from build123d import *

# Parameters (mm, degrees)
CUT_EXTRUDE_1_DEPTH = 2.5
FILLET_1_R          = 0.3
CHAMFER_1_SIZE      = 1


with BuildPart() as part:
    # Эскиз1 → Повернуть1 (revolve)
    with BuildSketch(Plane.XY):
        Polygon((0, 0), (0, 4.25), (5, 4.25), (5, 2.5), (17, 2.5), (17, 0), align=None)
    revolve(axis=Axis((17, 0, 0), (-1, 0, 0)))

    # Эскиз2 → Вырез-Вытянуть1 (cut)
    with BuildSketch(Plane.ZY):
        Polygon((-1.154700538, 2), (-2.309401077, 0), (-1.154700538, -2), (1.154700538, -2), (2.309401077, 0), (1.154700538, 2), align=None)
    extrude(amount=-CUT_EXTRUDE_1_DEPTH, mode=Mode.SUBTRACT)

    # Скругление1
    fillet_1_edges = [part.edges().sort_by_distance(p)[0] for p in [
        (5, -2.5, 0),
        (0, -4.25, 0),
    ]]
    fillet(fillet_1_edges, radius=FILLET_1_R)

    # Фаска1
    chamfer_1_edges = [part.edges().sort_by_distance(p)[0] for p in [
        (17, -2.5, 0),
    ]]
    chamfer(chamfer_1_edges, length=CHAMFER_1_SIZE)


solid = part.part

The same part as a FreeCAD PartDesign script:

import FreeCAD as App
import Part
import Sketcher

V = App.Vector
Q = App.Units.Quantity


def edges_at(feature, points):
    """Names of the edges that pass closest to the given points."""
    edges = feature.Shape.Edges
    near = lambda p: min(range(len(edges)), key=lambda i: edges[i].distToShape(Part.Vertex(*p))[0])
    return sorted({f"Edge{near(p) + 1}" for p in points})


def add_polygon(sketch, points):
    """Adds a closed chain of lines whose ends are joined by coincident constraints."""
    first, n = sketch.GeometryCount, len(points)
    for a, b in zip(points, points[1:] + points[:1]):
        sketch.addGeometry(Part.LineSegment(App.Vector(*a, 0), App.Vector(*b, 0)), False)
    for i in range(n):
        sketch.addConstraint(Sketcher.Constraint("Coincident", first + i, 2, first + (i + 1) % n, 1))

doc = App.newDocument("Part")
params = doc.addObject("Spreadsheet::Sheet", "Params")
for row, (alias, value) in enumerate([
    ("sketch1_width", "17 mm"),
    ("sketch1_width2", "12 mm"),
    ("sketch1_height", "2.5 mm"),
    ("sketch1_height2", "4.25 mm"),
    ("revolution_angle", "360 deg"),
    ("pocket1_length", "2.5 mm"),
    ("fillet_radius", "0.3 mm"),
    ("chamfer_size", "1 mm"),
], start=1):
    params.set(f"A{row}", alias)
    params.set(f"B{row}", "=" + value)
    params.setAlias(f"B{row}", alias)

body = doc.addObject("PartDesign::Body", "Body")

# Sketch on XY plane
sketch1 = body.newObject("Sketcher::SketchObject", "Sketch")
sketch1.AttachmentSupport = (doc.getObject("XY_Plane"), [""])
sketch1.MapMode = "FlatFace"
add_polygon(sketch1, [(0, 4.2), (0, 0), (17, 0), (17, 2.5), (5, 2.5), (5, 4.2)])  # lines 0-5
sketch1.addConstraint([
    Sketcher.Constraint("Vertical", 0),
    Sketcher.Constraint("Horizontal", 1),
    Sketcher.Constraint("Vertical", 2),
    Sketcher.Constraint("Horizontal", 3),
    Sketcher.Constraint("Vertical", 4),
    Sketcher.Constraint("Horizontal", 5),
    Sketcher.Constraint("Coincident", 0, 2, -1, 1),
    Sketcher.Constraint("DistanceX", 1, 1, 1, 2, 17.0),
    Sketcher.Constraint("DistanceX", 3, 2, 3, 1, 12.0),
    Sketcher.Constraint("DistanceY", 2, 1, 2, 2, 2.5),
    Sketcher.Constraint("DistanceY", 0, 2, 0, 1, 4.25),
])
sketch1.setExpression("Constraints[13]", "Params.sketch1_width")
sketch1.setExpression("Constraints[14]", "Params.sketch1_width2")
sketch1.setExpression("Constraints[15]", "Params.sketch1_height")
sketch1.setExpression("Constraints[16]", "Params.sketch1_height2")
revolution = body.newObject("PartDesign::Revolution", "Revolution")
revolution.Profile = sketch1
revolution.ReferenceAxis = (sketch1, ["H_Axis"])
revolution.setExpression("Angle", "Params.revolution_angle")

# Sketch on YZ plane
sketch2 = body.newObject("Sketcher::SketchObject", "Sketch001")
sketch2.AttachmentSupport = (doc.getObject("YZ_Plane"), [""])
sketch2.MapMode = "FlatFace"
add_polygon(sketch2, [(2, -1.2), (0, -2.3), (-2, -1.2), (-2, 1.2), (0, 2.3), (2, 1.2)])  # lines 0-5
sketch2.addConstraint([
    Sketcher.Constraint("Vertical", 2),
    Sketcher.Constraint("Vertical", 5),
    Sketcher.Constraint("Symmetric", 0, 2, 3, 2, -1, 1),
    Sketcher.Constraint("Symmetric", 1, 2, 4, 2, -1, 1),
    Sketcher.Constraint("PointOnObject", 0, 2, -2),
    Sketcher.Constraint("Parallel", 0, 3),
    Sketcher.Constraint("Horizontal", 2, 2, 4, 2),
    Sketcher.Constraint("Angle", 0, Q("-150 deg")),
    Sketcher.Constraint("DistanceX", 1, 2, -1, 1, 2.0),
    Sketcher.Constraint("DistanceY", 2, 1, 2, 2, 2.309401),
])
pocket1 = body.newObject("PartDesign::Pocket", "Pocket")
pocket1.Profile = sketch2
pocket1.setExpression("Length", "Params.pocket1_length")
pocket1.Reversed = True
doc.recompute()

fillet = body.newObject("PartDesign::Fillet", "Fillet")
fillet.Base = (pocket1, edges_at(pocket1, [(5, -2.5, 0), (0, -4.25, 0)]))
fillet.setExpression("Radius", "Params.fillet_radius")
doc.recompute()

chamfer = body.newObject("PartDesign::Chamfer", "Chamfer")
chamfer.Base = (fillet, edges_at(fillet, [(17, -2.5, 0)]))
chamfer.setExpression("Size", "Params.chamfer_size")

doc.recompute()
